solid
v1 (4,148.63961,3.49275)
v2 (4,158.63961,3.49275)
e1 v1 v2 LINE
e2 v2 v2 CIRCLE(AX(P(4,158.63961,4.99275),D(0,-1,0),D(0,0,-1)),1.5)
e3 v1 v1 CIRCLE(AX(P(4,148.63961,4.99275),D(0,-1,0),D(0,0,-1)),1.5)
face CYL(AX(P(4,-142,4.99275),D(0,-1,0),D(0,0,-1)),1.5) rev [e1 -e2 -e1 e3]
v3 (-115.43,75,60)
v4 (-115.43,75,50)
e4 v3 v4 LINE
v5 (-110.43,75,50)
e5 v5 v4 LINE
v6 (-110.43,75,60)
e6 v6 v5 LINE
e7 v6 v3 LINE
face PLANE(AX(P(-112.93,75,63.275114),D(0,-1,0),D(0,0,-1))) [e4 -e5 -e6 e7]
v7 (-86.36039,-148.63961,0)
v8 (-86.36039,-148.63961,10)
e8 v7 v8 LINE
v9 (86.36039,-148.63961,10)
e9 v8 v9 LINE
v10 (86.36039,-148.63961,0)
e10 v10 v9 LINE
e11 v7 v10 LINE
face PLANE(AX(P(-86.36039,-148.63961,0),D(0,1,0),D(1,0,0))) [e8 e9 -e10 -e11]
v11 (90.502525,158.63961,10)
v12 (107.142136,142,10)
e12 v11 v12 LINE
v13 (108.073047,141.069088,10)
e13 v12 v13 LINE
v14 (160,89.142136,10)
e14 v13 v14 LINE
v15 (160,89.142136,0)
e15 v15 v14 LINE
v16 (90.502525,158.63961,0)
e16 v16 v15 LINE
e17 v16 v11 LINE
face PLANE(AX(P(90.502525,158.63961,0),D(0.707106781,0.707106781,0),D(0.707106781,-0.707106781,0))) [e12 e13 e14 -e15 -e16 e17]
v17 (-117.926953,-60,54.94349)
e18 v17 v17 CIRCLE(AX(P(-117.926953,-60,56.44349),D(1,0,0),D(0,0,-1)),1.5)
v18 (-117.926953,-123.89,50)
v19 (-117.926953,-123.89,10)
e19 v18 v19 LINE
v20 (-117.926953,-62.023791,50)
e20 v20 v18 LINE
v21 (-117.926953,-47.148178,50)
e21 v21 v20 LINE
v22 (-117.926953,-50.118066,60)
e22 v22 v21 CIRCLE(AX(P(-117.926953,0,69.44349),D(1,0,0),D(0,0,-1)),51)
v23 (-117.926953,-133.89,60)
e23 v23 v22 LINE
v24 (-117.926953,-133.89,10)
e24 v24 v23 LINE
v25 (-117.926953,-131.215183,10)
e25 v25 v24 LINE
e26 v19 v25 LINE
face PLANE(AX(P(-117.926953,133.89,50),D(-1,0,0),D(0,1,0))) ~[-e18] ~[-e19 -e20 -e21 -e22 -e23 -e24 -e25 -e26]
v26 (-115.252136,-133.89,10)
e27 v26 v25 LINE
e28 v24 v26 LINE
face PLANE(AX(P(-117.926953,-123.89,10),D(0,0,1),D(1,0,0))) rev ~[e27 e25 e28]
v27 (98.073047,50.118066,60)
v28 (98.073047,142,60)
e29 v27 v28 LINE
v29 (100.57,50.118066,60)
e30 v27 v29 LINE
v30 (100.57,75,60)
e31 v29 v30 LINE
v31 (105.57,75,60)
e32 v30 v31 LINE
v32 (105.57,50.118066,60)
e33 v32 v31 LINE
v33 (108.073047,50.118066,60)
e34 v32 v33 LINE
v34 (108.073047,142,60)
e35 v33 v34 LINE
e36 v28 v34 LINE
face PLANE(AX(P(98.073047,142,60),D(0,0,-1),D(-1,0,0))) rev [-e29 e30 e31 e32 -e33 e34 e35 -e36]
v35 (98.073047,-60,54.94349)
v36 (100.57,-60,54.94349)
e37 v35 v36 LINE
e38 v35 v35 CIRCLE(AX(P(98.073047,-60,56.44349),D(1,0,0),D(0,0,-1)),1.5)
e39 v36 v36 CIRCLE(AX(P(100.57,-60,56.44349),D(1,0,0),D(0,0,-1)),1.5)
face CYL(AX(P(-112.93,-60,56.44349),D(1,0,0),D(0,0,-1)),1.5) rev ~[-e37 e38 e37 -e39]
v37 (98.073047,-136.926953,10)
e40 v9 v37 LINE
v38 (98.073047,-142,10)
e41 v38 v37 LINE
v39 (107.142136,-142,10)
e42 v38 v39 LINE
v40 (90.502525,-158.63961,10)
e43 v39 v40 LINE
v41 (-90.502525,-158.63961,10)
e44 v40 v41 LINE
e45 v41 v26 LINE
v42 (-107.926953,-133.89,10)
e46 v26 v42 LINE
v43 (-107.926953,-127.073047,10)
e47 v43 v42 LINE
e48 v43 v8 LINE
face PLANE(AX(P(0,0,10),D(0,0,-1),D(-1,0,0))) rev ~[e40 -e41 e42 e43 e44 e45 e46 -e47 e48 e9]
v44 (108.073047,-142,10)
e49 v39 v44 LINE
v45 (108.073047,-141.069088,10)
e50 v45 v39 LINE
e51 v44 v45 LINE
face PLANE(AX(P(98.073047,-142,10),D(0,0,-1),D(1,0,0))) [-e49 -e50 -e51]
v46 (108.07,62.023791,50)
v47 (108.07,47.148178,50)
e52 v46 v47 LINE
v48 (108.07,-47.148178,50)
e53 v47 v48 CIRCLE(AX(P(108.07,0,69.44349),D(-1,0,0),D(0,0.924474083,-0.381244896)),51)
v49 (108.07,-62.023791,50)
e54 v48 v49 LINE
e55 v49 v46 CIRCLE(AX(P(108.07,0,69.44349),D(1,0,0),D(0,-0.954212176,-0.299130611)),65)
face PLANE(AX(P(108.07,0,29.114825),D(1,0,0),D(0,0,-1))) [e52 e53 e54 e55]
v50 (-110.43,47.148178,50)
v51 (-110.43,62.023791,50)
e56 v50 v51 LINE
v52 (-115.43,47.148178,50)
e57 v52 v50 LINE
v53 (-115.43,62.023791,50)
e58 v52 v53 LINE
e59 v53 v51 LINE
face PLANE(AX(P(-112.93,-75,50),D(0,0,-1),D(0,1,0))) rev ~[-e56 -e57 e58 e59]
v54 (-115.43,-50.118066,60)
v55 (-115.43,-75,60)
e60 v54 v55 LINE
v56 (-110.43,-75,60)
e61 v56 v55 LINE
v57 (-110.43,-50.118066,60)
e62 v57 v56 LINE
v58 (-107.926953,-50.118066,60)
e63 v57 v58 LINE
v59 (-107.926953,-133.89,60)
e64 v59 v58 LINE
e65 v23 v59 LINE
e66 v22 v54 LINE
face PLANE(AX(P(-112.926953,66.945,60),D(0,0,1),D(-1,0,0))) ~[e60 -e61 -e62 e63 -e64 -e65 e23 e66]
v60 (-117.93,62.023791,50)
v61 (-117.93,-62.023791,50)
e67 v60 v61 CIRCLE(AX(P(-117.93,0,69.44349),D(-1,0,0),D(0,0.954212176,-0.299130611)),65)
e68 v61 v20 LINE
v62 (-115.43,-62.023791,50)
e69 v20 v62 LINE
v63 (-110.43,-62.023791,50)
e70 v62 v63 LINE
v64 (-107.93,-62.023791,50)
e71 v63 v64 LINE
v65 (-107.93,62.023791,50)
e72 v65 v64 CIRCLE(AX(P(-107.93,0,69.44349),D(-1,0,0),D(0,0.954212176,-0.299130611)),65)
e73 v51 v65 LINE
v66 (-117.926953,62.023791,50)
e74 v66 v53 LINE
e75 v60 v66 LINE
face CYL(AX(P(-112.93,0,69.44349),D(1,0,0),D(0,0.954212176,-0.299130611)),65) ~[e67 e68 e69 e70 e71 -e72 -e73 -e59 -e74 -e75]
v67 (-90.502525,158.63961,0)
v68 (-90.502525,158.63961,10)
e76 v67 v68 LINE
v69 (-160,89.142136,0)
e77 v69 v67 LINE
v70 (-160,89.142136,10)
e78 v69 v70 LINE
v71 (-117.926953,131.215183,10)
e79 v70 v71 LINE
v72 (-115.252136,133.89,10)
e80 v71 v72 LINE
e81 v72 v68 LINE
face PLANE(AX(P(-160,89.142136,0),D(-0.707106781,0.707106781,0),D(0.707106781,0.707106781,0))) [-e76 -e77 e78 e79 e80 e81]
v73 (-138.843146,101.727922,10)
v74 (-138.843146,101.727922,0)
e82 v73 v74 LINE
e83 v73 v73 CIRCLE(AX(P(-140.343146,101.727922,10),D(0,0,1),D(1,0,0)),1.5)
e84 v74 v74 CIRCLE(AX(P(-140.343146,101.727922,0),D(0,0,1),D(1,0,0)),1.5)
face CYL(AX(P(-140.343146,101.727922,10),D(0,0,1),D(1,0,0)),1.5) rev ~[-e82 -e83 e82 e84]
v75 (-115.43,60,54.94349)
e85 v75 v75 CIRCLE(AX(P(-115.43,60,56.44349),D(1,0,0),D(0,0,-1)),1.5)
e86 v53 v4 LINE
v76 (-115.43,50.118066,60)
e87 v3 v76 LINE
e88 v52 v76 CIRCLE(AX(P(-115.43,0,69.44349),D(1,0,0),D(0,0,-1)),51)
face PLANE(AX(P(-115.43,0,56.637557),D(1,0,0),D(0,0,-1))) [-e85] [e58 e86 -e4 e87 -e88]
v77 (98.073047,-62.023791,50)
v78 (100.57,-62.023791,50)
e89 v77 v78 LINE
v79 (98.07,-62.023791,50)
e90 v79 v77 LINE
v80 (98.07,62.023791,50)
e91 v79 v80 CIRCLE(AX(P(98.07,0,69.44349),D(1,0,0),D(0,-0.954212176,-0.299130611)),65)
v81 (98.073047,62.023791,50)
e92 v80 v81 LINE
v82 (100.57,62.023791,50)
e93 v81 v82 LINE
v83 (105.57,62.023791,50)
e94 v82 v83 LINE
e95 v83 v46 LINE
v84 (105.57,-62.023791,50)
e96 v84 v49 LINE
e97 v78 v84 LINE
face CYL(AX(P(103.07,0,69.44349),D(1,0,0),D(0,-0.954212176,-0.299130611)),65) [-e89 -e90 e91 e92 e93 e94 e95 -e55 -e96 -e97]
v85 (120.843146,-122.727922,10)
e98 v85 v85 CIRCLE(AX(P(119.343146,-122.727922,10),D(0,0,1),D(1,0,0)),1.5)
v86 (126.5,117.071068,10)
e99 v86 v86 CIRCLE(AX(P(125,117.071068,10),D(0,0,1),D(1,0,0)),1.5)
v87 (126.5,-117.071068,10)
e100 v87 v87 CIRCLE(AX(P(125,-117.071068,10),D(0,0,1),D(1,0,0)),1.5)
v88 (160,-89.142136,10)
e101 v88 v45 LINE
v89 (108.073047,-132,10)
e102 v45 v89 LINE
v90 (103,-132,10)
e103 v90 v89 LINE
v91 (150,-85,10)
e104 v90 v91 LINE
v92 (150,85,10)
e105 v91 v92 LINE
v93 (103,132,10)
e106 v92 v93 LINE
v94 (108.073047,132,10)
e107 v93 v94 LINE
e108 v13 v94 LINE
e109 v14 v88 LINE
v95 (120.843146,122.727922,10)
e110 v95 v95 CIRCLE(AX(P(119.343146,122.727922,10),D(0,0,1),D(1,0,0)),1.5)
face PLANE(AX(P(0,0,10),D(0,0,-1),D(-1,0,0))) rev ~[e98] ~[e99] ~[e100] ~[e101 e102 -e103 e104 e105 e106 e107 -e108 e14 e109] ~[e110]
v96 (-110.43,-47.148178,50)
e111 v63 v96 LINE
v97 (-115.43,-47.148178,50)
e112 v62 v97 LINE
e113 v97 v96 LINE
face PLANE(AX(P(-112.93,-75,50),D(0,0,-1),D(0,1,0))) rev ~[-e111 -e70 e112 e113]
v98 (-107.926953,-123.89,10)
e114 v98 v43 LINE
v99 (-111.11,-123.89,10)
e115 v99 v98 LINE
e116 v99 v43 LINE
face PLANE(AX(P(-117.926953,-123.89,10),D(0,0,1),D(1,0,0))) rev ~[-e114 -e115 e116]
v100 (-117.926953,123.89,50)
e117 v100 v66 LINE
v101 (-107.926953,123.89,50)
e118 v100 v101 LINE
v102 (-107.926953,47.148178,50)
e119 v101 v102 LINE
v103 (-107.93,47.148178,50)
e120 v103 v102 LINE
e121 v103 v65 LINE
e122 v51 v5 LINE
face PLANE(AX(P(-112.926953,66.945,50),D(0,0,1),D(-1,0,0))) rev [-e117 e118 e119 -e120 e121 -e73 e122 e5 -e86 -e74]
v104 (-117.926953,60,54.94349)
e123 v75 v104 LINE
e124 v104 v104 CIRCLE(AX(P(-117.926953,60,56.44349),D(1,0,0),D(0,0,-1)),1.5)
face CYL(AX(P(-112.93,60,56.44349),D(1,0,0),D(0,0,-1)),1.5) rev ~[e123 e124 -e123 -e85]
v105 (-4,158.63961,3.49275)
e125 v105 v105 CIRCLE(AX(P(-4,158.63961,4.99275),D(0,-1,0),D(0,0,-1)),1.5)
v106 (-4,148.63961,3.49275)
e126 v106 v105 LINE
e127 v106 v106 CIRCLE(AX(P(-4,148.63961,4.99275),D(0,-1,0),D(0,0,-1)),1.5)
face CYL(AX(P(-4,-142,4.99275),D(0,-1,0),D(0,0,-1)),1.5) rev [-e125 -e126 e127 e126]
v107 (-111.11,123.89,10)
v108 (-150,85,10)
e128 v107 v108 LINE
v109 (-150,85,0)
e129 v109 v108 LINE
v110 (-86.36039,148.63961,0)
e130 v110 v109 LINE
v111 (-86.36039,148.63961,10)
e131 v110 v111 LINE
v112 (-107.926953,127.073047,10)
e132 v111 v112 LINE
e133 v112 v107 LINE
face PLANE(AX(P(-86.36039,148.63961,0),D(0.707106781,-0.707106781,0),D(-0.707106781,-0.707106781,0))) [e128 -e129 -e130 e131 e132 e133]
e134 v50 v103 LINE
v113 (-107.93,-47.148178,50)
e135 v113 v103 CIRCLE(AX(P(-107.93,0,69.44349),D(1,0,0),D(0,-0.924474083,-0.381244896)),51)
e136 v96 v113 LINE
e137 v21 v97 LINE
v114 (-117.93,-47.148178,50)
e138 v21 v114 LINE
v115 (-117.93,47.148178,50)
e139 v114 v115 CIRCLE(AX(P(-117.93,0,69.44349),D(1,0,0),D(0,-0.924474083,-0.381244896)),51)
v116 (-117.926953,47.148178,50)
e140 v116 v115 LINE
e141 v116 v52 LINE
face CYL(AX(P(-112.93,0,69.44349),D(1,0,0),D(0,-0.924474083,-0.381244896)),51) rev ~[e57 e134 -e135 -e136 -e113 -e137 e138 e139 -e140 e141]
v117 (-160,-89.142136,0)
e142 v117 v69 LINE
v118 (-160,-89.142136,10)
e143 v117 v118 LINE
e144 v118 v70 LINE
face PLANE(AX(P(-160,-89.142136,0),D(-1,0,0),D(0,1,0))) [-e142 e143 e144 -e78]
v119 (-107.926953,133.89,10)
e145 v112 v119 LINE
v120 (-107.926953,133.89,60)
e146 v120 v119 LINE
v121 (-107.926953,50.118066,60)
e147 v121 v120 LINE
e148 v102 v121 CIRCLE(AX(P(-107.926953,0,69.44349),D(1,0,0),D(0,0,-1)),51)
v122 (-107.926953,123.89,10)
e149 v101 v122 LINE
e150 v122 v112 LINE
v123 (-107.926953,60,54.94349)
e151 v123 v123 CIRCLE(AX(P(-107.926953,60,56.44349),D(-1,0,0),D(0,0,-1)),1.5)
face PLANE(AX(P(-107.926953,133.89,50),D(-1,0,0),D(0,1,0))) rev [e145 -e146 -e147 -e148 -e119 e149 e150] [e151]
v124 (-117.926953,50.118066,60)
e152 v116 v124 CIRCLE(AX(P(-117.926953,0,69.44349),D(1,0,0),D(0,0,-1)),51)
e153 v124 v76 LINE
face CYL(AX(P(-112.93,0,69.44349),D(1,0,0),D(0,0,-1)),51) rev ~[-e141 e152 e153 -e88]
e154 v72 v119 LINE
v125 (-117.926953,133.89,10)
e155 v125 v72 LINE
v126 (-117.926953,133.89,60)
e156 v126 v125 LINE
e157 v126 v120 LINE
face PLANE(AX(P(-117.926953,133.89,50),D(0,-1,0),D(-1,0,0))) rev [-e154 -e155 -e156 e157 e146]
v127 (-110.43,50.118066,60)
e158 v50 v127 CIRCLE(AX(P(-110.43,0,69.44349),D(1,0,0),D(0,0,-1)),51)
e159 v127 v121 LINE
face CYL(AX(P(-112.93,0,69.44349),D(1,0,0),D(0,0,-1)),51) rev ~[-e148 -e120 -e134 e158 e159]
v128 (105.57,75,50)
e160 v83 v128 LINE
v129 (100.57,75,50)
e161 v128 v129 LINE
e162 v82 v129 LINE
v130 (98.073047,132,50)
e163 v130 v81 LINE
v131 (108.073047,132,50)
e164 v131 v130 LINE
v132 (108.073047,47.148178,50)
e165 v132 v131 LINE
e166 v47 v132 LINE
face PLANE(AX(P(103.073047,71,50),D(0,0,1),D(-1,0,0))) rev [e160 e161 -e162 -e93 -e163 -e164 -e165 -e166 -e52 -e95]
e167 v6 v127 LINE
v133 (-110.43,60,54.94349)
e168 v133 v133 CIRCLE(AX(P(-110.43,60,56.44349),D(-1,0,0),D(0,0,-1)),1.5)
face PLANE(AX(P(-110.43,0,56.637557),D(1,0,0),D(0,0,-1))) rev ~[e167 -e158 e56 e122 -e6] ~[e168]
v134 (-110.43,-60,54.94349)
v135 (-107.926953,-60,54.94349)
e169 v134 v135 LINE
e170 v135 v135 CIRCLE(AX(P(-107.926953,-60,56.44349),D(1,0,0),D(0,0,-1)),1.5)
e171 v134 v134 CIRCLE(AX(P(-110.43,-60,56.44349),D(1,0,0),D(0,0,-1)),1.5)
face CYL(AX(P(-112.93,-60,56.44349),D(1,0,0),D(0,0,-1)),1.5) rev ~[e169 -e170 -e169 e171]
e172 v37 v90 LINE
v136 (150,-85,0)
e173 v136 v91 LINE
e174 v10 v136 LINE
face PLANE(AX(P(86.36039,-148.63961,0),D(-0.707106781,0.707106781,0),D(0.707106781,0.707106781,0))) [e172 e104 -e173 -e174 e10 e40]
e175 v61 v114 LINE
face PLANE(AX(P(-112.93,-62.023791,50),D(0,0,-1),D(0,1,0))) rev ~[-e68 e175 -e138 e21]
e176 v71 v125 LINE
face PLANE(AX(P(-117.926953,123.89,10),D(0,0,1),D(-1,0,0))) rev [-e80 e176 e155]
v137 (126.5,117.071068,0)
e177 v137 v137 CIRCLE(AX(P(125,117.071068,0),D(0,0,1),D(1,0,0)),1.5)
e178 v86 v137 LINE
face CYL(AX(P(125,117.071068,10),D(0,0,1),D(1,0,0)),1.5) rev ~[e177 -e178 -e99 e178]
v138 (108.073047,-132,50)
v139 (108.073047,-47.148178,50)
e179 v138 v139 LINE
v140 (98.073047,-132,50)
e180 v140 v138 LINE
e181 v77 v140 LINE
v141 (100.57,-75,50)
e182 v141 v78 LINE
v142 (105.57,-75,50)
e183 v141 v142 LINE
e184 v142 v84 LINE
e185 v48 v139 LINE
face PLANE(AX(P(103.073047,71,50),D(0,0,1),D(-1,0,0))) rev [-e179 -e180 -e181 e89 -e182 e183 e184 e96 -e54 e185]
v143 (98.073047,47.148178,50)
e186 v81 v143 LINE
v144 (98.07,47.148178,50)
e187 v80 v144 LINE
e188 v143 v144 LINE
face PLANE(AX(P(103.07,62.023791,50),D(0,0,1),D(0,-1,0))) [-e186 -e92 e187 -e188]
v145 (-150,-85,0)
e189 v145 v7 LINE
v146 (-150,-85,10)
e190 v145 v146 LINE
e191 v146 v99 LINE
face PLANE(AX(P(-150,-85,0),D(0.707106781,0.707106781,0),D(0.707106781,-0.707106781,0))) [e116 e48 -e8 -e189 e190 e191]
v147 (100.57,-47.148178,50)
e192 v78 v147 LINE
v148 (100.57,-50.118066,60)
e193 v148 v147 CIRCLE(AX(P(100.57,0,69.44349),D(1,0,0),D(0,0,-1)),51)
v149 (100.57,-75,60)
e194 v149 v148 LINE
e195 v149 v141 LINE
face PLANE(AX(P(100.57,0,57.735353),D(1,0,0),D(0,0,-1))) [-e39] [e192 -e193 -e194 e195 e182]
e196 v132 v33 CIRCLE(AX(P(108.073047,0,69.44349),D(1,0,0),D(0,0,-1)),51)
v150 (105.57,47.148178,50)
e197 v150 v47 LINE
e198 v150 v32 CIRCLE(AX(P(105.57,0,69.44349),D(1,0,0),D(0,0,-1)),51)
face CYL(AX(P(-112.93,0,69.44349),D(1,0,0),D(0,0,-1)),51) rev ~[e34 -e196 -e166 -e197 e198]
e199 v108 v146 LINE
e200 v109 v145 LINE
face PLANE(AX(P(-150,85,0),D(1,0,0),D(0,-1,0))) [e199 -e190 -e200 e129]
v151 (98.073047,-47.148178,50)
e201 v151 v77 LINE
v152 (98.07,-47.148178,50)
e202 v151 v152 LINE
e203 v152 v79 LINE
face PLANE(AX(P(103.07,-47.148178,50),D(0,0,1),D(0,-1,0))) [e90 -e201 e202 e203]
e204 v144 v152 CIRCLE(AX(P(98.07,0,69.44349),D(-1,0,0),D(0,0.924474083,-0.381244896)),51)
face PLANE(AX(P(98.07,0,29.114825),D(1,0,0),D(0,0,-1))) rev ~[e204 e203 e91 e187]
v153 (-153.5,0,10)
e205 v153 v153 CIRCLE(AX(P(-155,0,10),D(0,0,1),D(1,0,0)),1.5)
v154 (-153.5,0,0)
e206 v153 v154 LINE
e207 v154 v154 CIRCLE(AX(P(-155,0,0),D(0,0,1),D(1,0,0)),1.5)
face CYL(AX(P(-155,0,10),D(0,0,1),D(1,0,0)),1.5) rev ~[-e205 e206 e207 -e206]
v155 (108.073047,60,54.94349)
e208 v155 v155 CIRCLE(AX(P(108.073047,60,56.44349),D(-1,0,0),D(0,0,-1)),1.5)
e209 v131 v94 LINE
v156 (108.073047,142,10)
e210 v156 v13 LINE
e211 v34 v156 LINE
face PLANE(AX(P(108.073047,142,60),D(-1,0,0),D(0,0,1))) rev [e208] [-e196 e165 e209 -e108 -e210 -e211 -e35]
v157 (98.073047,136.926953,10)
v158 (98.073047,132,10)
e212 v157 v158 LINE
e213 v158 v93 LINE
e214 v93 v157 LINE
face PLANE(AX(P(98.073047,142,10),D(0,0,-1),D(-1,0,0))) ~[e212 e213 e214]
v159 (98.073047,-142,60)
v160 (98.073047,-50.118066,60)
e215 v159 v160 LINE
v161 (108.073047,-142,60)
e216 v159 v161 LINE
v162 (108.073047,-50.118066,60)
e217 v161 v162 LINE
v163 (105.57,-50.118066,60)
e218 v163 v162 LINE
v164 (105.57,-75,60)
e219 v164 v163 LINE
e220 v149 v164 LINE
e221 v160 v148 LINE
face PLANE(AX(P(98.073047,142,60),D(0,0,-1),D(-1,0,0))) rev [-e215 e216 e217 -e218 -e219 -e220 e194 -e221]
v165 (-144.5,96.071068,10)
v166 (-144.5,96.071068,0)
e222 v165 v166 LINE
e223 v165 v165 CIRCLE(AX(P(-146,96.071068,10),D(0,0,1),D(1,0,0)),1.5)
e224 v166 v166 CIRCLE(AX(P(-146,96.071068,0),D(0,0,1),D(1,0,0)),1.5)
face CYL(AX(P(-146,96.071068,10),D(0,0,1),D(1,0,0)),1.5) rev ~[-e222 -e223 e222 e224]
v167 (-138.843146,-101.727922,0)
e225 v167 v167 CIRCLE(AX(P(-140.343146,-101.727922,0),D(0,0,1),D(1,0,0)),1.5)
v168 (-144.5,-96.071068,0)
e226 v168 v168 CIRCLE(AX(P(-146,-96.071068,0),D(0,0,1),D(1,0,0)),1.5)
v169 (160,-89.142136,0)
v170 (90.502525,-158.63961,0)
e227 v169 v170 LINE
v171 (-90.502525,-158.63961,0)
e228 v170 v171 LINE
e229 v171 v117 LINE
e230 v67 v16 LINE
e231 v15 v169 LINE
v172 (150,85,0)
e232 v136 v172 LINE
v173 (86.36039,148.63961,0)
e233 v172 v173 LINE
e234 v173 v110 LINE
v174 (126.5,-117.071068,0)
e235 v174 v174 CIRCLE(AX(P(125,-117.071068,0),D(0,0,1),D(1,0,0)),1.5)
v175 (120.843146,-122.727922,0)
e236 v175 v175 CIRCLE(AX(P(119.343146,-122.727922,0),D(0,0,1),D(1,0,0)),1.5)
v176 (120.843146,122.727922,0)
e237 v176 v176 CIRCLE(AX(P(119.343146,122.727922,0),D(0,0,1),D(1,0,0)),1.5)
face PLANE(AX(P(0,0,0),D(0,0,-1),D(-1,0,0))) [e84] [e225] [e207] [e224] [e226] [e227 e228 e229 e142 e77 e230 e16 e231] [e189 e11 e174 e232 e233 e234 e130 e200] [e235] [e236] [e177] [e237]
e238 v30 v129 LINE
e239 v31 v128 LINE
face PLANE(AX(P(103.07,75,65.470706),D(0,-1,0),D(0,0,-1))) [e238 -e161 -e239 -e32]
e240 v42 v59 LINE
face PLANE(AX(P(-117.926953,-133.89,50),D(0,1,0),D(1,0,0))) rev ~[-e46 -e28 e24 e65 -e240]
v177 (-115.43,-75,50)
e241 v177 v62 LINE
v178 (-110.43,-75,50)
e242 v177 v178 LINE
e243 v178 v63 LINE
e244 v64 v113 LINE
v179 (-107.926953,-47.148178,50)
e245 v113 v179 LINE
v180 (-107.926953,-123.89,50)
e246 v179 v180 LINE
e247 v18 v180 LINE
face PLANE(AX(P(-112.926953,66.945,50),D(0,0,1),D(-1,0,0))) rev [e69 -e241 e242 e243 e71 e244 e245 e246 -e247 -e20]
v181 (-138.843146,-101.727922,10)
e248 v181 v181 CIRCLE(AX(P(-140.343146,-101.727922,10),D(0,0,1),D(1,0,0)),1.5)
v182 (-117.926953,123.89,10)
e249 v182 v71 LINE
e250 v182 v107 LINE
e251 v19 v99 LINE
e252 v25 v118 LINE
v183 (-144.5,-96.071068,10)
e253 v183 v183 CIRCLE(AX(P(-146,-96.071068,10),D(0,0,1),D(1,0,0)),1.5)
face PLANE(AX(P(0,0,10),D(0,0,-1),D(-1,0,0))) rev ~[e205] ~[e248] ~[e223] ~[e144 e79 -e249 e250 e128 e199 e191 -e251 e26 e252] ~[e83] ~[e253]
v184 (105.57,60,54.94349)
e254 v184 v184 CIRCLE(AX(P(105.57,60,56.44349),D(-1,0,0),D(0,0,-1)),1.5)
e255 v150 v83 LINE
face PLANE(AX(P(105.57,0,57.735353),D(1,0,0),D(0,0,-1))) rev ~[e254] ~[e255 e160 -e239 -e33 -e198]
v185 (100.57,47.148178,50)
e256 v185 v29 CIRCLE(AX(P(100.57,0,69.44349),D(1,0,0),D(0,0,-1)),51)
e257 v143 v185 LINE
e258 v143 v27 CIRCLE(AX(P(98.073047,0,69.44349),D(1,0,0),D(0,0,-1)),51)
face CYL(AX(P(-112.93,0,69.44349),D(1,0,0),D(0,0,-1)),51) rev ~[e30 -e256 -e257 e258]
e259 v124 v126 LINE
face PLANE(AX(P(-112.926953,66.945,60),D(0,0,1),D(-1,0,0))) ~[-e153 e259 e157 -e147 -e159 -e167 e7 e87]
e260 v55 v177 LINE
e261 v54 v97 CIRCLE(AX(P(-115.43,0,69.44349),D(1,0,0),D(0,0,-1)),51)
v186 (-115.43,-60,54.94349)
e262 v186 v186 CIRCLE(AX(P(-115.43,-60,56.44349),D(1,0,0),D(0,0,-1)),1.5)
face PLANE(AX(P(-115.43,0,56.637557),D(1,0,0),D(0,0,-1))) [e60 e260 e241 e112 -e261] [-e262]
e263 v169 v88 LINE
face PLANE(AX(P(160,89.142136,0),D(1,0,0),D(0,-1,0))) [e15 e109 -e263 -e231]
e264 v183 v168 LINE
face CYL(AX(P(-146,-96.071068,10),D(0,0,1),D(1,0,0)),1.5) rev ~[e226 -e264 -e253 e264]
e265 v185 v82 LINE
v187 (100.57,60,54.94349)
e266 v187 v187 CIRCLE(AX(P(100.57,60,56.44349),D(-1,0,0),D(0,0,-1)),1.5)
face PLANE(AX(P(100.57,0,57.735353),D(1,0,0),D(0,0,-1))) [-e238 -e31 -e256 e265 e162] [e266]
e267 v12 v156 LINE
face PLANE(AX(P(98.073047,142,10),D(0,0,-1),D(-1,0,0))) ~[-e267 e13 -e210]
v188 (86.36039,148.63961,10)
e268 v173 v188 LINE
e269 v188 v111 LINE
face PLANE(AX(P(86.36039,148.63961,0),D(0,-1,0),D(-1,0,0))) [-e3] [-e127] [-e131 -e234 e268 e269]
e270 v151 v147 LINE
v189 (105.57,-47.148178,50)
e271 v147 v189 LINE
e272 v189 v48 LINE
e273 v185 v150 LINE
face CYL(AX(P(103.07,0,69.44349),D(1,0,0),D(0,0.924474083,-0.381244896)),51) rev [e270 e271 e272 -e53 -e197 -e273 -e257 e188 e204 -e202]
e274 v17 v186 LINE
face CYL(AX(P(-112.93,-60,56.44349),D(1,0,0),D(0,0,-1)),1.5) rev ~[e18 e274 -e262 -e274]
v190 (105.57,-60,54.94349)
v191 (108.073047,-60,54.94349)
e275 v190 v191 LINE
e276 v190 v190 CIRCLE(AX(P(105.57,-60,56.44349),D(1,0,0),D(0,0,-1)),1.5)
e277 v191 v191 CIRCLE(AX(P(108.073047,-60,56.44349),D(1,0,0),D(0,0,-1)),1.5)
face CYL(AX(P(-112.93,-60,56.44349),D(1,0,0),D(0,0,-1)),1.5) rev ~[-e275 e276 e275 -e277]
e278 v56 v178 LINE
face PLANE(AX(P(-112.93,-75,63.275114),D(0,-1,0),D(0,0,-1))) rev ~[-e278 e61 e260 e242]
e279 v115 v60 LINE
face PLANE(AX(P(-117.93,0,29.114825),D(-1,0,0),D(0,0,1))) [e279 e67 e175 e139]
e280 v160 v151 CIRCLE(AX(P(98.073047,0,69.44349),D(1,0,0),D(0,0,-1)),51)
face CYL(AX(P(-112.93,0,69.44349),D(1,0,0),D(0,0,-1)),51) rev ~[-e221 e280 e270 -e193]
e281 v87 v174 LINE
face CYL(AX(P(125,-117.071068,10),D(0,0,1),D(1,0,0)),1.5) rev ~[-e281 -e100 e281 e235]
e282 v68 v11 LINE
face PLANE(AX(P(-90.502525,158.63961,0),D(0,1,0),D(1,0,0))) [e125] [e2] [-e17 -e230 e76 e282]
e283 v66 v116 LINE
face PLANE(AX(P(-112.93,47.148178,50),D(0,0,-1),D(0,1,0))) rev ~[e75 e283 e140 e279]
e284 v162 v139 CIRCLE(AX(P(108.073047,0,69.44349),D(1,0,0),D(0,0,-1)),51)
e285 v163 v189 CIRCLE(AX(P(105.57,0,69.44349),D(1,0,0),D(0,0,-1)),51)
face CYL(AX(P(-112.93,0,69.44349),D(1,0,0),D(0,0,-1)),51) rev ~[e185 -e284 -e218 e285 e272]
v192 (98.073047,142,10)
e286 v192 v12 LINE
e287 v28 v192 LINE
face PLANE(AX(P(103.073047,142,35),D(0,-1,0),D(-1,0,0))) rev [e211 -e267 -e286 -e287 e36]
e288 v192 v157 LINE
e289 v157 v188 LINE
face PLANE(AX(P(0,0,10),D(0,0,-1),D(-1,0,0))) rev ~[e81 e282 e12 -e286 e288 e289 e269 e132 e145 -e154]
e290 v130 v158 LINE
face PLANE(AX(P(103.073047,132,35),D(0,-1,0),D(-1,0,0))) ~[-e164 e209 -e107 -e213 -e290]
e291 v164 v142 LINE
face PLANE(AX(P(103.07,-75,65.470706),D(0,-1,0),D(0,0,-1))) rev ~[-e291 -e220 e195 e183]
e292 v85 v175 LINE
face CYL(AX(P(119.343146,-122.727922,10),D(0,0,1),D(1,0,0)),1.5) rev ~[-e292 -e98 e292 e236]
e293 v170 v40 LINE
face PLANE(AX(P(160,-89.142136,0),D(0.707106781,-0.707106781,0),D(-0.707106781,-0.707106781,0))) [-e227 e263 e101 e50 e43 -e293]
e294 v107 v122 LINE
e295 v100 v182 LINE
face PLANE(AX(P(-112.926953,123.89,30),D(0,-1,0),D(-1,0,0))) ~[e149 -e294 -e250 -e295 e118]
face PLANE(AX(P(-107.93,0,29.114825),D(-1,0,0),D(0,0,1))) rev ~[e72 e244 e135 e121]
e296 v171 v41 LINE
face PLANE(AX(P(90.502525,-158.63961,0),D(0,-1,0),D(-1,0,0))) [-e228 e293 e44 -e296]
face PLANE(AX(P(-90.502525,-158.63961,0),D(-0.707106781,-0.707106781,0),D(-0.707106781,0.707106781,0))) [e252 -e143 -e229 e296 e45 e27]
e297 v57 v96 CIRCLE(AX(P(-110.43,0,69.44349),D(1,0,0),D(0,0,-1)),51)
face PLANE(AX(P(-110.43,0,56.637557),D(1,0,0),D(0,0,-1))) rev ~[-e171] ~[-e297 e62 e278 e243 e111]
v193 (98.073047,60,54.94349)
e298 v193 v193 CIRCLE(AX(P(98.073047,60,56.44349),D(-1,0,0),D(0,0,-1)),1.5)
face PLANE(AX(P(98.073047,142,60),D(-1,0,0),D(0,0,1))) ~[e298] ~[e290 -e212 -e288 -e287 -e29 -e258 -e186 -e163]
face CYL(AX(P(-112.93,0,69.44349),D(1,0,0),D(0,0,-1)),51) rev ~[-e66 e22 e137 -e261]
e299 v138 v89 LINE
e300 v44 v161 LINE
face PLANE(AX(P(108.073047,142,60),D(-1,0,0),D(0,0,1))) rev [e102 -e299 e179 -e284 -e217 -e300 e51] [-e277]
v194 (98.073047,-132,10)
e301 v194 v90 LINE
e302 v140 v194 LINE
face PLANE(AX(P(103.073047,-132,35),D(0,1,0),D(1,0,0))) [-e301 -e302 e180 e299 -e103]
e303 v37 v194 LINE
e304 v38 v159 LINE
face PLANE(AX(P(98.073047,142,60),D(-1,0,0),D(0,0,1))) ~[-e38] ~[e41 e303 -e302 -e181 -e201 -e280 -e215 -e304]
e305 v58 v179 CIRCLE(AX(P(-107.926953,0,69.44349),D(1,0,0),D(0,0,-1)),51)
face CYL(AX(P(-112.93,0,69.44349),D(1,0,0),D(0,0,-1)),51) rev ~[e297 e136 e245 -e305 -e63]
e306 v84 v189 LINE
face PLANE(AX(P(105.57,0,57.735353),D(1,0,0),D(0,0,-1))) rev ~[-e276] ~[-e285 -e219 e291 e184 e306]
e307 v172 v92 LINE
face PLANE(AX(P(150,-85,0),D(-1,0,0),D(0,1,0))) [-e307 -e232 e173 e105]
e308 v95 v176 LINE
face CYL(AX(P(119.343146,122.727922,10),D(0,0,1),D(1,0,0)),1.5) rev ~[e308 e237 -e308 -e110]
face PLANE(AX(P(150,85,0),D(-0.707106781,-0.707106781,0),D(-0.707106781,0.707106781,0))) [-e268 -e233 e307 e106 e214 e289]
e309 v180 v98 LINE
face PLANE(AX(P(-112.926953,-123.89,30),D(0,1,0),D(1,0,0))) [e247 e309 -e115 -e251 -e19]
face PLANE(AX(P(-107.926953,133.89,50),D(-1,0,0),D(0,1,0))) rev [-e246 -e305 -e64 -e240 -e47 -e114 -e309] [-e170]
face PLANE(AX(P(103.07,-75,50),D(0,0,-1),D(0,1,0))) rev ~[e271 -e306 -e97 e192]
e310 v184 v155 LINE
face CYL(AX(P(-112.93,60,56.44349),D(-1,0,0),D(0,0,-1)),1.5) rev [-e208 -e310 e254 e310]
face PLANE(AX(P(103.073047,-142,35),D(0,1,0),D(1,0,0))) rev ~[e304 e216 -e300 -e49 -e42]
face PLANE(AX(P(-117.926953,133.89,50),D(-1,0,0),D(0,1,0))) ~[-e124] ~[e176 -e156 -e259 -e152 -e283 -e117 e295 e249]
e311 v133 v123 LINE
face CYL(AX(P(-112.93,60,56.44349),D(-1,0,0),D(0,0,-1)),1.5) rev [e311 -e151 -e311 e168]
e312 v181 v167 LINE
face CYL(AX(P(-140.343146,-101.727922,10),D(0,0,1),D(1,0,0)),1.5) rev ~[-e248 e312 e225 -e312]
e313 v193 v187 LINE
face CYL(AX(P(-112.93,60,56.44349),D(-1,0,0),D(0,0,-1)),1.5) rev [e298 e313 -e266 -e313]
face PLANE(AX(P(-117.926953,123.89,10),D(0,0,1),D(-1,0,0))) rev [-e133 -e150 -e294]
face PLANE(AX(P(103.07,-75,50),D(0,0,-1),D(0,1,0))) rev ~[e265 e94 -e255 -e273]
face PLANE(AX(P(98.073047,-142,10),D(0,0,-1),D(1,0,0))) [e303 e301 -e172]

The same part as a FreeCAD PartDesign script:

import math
import FreeCAD as App
import Part
import Sketcher

V = App.Vector

doc = App.newDocument("Part")
body = doc.addObject("PartDesign::Body", "Body")

# Sketch on XY plane
sketch1 = body.newObject("Sketcher::SketchObject", "Sketch")
sketch1.AttachmentSupport = (doc.getObject("XY_Plane"), [""])
sketch1.MapMode = "FlatFace"
sketch1.addGeometry(Part.LineSegment(V(-91, 159, 0), V(-160, 89, 0)), False)
sketch1.addGeometry(Part.LineSegment(V(-160, 89, 0), V(-160, -89, 0)), False)
sketch1.addGeometry(Part.LineSegment(V(-160, -89, 0), V(-91, -159, 0)), False)
sketch1.addGeometry(Part.LineSegment(V(-91, -159, 0), V(91, -159, 0)), False)
sketch1.addGeometry(Part.LineSegment(V(91, -159, 0), V(160, -89, 0)), False)
sketch1.addGeometry(Part.LineSegment(V(160, -89, 0), V(160, 89, 0)), False)
sketch1.addGeometry(Part.LineSegment(V(160, 89, 0), V(91, 159, 0)), False)
sketch1.addGeometry(Part.LineSegment(V(91, 159, 0), V(-91, 159, 0)), False)
sketch1.addGeometry(Part.LineSegment(V(-150, 85, 0), V(-86, 149, 0)), False)
sketch1.addGeometry(Part.LineSegment(V(-86, 149, 0), V(86, 149, 0)), False)
sketch1.addGeometry(Part.LineSegment(V(86, 149, 0), V(150, 85, 0)), False)
sketch1.addGeometry(Part.LineSegment(V(150, 85, 0), V(150, -85, 0)), False)
sketch1.addGeometry(Part.LineSegment(V(150, -85, 0), V(86, -149, 0)), False)
sketch1.addGeometry(Part.LineSegment(V(86, -149, 0), V(-86, -149, 0)), False)
sketch1.addGeometry(Part.LineSegment(V(-86, -149, 0), V(-150, -85, 0)), False)
sketch1.addGeometry(Part.LineSegment(V(-150, -85, 0), V(-150, 85, 0)), False)
sketch1.addConstraint(Sketcher.Constraint("Coincident", 0, 2, 1, 1))
sketch1.addConstraint(Sketcher.Constraint("Coincident", 1, 2, 2, 1))
sketch1.addConstraint(Sketcher.Constraint("Coincident", 2, 2, 3, 1))
sketch1.addConstraint(Sketcher.Constraint("Coincident", 3, 2, 4, 1))
sketch1.addConstraint(Sketcher.Constraint("Coincident", 4, 2, 5, 1))
sketch1.addConstraint(Sketcher.Constraint("Coincident", 5, 2, 6, 1))
sketch1.addConstraint(Sketcher.Constraint("Coincident", 6, 2, 7, 1))
sketch1.addConstraint(Sketcher.Constraint("Coincident", 7, 2, 0, 1))
sketch1.addConstraint(Sketcher.Constraint("Coincident", 8, 2, 9, 1))
sketch1.addConstraint(Sketcher.Constraint("Coincident", 9, 2, 10, 1))
sketch1.addConstraint(Sketcher.Constraint("Coincident", 10, 2, 11, 1))
sketch1.addConstraint(Sketcher.Constraint("Coincident", 11, 2, 12, 1))
sketch1.addConstraint(Sketcher.Constraint("Coincident", 12, 2, 13, 1))
sketch1.addConstraint(Sketcher.Constraint("Coincident", 13, 2, 14, 1))
sketch1.addConstraint(Sketcher.Constraint("Coincident", 14, 2, 15, 1))
sketch1.addConstraint(Sketcher.Constraint("Coincident", 15, 2, 8, 1))
sketch1.addConstraint(Sketcher.Constraint("Vertical", 1))
sketch1.addConstraint(Sketcher.Constraint("Horizontal", 3))
sketch1.addConstraint(Sketcher.Constraint("Vertical", 5))
sketch1.addConstraint(Sketcher.Constraint("Horizontal", 7))
sketch1.addConstraint(Sketcher.Constraint("Horizontal", 9))
sketch1.addConstraint(Sketcher.Constraint("Vertical", 11))
sketch1.addConstraint(Sketcher.Constraint("Horizontal", 13))
sketch1.addConstraint(Sketcher.Constraint("Vertical", 15))
sketch1.addConstraint(Sketcher.Constraint("Symmetric", 0, 2, 4, 2, -1, 1))
sketch1.addConstraint(Sketcher.Constraint("Symmetric", 2, 2, 6, 2, -1, 1))
sketch1.addConstraint(Sketcher.Constraint("Symmetric", 8, 2, 12, 2, -1, 1))
sketch1.addConstraint(Sketcher.Constraint("Symmetric", 10, 2, 14, 2, -1, 1))
sketch1.addConstraint(Sketcher.Constraint("Perpendicular", 0, 2))
sketch1.addConstraint(Sketcher.Constraint("Perpendicular", 2, 4))
sketch1.addConstraint(Sketcher.Constraint("Perpendicular", 4, 6))
sketch1.addConstraint(Sketcher.Constraint("Perpendicular", 6, 8))
sketch1.addConstraint(Sketcher.Constraint("Perpendicular", 8, 10))
sketch1.addConstraint(Sketcher.Constraint("Perpendicular", 10, 12))
sketch1.addConstraint(Sketcher.Constraint("Perpendicular", 12, 14))
sketch1.addConstraint(Sketcher.Constraint("Horizontal", 1, 2, 4, 2))
sketch1.addConstraint(Sketcher.Constraint("Horizontal", 11, 2, 14, 2))
sketch1.addConstraint(Sketcher.Constraint("Vertical", 3, 2, 6, 2))
sketch1.addConstraint(Sketcher.Constraint("DistanceY", 11, 2, 11, 1, 170.0))
sketch1.addConstraint(Sketcher.Constraint("Distance", 8, 90.0))
sketch1.addConstraint(Sketcher.Constraint("DistanceX", 0, 2, -1, 1, 160.0))
sketch1.addConstraint(Sketcher.Constraint("DistanceX", -1, 1, 10, 2, 150.0))
sketch1.addConstraint(Sketcher.Constraint("DistanceY", 8, 2, 7, 2, 10.0))
sketch1.addConstraint(Sketcher.Constraint("DistanceX", 3, 1, 3, 2, 181.005051))
pad1 = body.newObject("PartDesign::Pad", "Pad")
pad1.Profile = sketch1
pad1.Length = 10

# Sketch on XZ plane
sketch2 = body.newObject("Sketcher::SketchObject", "Sketch001")
sketch2.AttachmentSupport = (doc.getObject("XZ_Plane"), [""])
sketch2.MapMode = "FlatFace"
sketch2.AttachmentOffset = App.Placement(V(0, 0, 123.89), App.Rotation())
sketch2.addGeometry(Part.LineSegment(V(-118, 10, 0), V(-118, 50, 0)), False)
sketch2.addGeometry(Part.LineSegment(V(-118, 50, 0), V(-108, 50, 0)), False)
sketch2.addGeometry(Part.LineSegment(V(-108, 50, 0), V(-108, 10, 0)), False)
sketch2.addGeometry(Part.LineSegment(V(-108, 10, 0), V(-118, 10, 0)), False)
sketch2.addConstraint(Sketcher.Constraint("Coincident", 0, 2, 1, 1))
sketch2.addConstraint(Sketcher.Constraint("Coincident", 1, 2, 2, 1))
sketch2.addConstraint(Sketcher.Constraint("Coincident", 2, 2, 3, 1))
sketch2.addConstraint(Sketcher.Constraint("Coincident", 3, 2, 0, 1))
sketch2.addConstraint(Sketcher.Constraint("Vertical", 0))
sketch2.addConstraint(Sketcher.Constraint("Horizontal", 1))
sketch2.addConstraint(Sketcher.Constraint("Vertical", 2))
sketch2.addConstraint(Sketcher.Constraint("Horizontal", 3))
sketch2.addConstraint(Sketcher.Constraint("DistanceX", 1, 1, 1, 2, 10.0))
sketch2.addConstraint(Sketcher.Constraint("DistanceY", 0, 1, 0, 2, 40.0))
sketch2.addConstraint(Sketcher.Constraint("DistanceY", -1, 1, 0, 2, 50.0))
sketch2.addConstraint(Sketcher.Constraint("DistanceX", 0, 2, -1, 1, 117.926953))
pad2 = body.newObject("PartDesign::Pad", "Pad001")
pad2.Profile = sketch2
pad2.Length = 10

# Sketch on XY plane
sketch3 = body.newObject("Sketcher::SketchObject", "Sketch002")
sketch3.AttachmentSupport = (doc.getObject("XY_Plane"), [""])
sketch3.MapMode = "FlatFace"
sketch3.AttachmentOffset = App.Placement(V(0, 0, 50), App.Rotation())
sketch3.addGeometry(Part.LineSegment(V(-118, 0, 0), V(-118, -134, 0)), False)
sketch3.addGeometry(Part.LineSegment(V(-118, -134, 0), V(-108, -134, 0)), False)
sketch3.addGeometry(Part.LineSegment(V(-108, -134, 0), V(-108, 0, 0)), False)
sketch3.addGeometry(Part.LineSegment(V(-108, 0, 0), V(-118, 0, 0)), False)
sketch3.addConstraint(Sketcher.Constraint("Coincident", 0, 2, 1, 1))
sketch3.addConstraint(Sketcher.Constraint("Coincident", 1, 2, 2, 1))
sketch3.addConstraint(Sketcher.Constraint("Coincident", 2, 2, 3, 1))
sketch3.addConstraint(Sketcher.Constraint("Coincident", 3, 2, 0, 1))
sketch3.addConstraint(Sketcher.Constraint("Vertical", 0))
sketch3.addConstraint(Sketcher.Constraint("Horizontal", 1))
sketch3.addConstraint(Sketcher.Constraint("Vertical", 2))
sketch3.addConstraint(Sketcher.Constraint("Horizontal", 3))
sketch3.addConstraint(Sketcher.Constraint("PointOnObject", 2, 2, -1))
sketch3.addConstraint(Sketcher.Constraint("DistanceX", 1, 1, 1, 2, 10.0))
sketch3.addConstraint(Sketcher.Constraint("DistanceY", 0, 2, 0, 1, 133.89))
sketch3.addConstraint(Sketcher.Constraint("DistanceX", 0, 2, -1, 1, 117.926953))
pad3 = body.newObject("PartDesign::Pad", "Pad002")
pad3.Profile = sketch3
pad3.Length = 10

# Sketch on XZ plane
sketch4 = body.newObject("Sketcher::SketchObject", "Sketch003")
sketch4.AttachmentSupport = (doc.getObject("XZ_Plane"), [""])
sketch4.MapMode = "FlatFace"
sketch4.AttachmentOffset = App.Placement(V(0, 0, 142), App.Rotation())
sketch4.addGeometry(Part.LineSegment(V(98, 10, 0), V(98, 60, 0)), False)
sketch4.addGeometry(Part.LineSegment(V(98, 60, 0), V(108, 60, 0)), False)
sketch4.addGeometry(Part.LineSegment(V(108, 60, 0), V(108, 10, 0)), False)
sketch4.addGeometry(Part.LineSegment(V(108, 10, 0), V(98, 10, 0)), False)
sketch4.addConstraint(Sketcher.Constraint("Coincident", 0, 2, 1, 1))
sketch4.addConstraint(Sketcher.Constraint("Coincident", 1, 2, 2, 1))
sketch4.addConstraint(Sketcher.Constraint("Coincident", 2, 2, 3, 1))
sketch4.addConstraint(Sketcher.Constraint("Coincident", 3, 2, 0, 1))
sketch4.addConstraint(Sketcher.Constraint("Vertical", 0))
sketch4.addConstraint(Sketcher.Constraint("Horizontal", 1))
sketch4.addConstraint(Sketcher.Constraint("Vertical", 2))
sketch4.addConstraint(Sketcher.Constraint("Horizontal", 3))
sketch4.addConstraint(Sketcher.Constraint("DistanceX", 1, 1, 1, 2, 10.0))
sketch4.addConstraint(Sketcher.Constraint("DistanceY", 0, 1, 0, 2, 50.0))
sketch4.addConstraint(Sketcher.Constraint("DistanceY", -1, 1, 0, 2, 60.0))
sketch4.addConstraint(Sketcher.Constraint("DistanceX", -1, 1, 0, 2, 98.073047))
pad4 = body.newObject("PartDesign::Pad", "Pad003")
pad4.Profile = sketch4
pad4.Length = 10
pad4.Reversed = True

# Sketch on XY plane
sketch5 = body.newObject("Sketcher::SketchObject", "Sketch004")
sketch5.AttachmentSupport = (doc.getObject("XY_Plane"), [""])
sketch5.MapMode = "FlatFace"
sketch5.AttachmentOffset = App.Placement(V(0, 0, 50), App.Rotation())
sketch5.addGeometry(Part.LineSegment(V(98, 0, 0), V(98, -142, 0)), False)
sketch5.addGeometry(Part.LineSegment(V(98, -142, 0), V(108, -142, 0)), False)
sketch5.addGeometry(Part.LineSegment(V(108, -142, 0), V(108, 0, 0)), False)
sketch5.addGeometry(Part.LineSegment(V(108, 0, 0), V(98, 0, 0)), False)
sketch5.addConstraint(Sketcher.Constraint("Coincident", 0, 2, 1, 1))
sketch5.addConstraint(Sketcher.Constraint("Coincident", 1, 2, 2, 1))
sketch5.addConstraint(Sketcher.Constraint("Coincident", 2, 2, 3, 1))
sketch5.addConstraint(Sketcher.Constraint("Coincident", 3, 2, 0, 1))
sketch5.addConstraint(Sketcher.Constraint("Vertical", 0))
sketch5.addConstraint(Sketcher.Constraint("Horizontal", 1))
sketch5.addConstraint(Sketcher.Constraint("Vertical", 2))
sketch5.addConstraint(Sketcher.Constraint("Horizontal", 3))
sketch5.addConstraint(Sketcher.Constraint("PointOnObject", 2, 2, -1))
sketch5.addConstraint(Sketcher.Constraint("DistanceX", 1, 1, 1, 2, 10.0))
sketch5.addConstraint(Sketcher.Constraint("DistanceY", 0, 2, 0, 1, 142.0))
sketch5.addConstraint(Sketcher.Constraint("DistanceX", -1, 1, 0, 2, 98.073047))
pad5 = body.newObject("PartDesign::Pad", "Pad004")
pad5.Profile = sketch5
pad5.Length = 10
doc.recompute()

mirrored = body.newObject("PartDesign::Mirrored", "Mirrored")
mirrored.Originals = [pad2, pad3, pad4, pad5]
mirrored.MirrorPlane = (doc.getObject("XZ_Plane"), [""])
body.Tip = mirrored

# Sketch on XY plane
sketch6 = body.newObject("Sketcher::SketchObject", "Sketch005")
sketch6.AttachmentSupport = (doc.getObject("XY_Plane"), [""])
sketch6.MapMode = "FlatFace"
sketch6.AttachmentOffset = App.Placement(V(0, 0, 10), App.Rotation())
sketch6.addGeometry(Part.Circle(V(125, 117.1, 0), V(0, 0, 1), 1.5), False)
sketch6.addGeometry(Part.Circle(V(119.3, 122.7, 0), V(0, 0, 1), 1.5), False)
sketch6.addGeometry(Part.Circle(V(119.3, -122.7, 0), V(0, 0, 1), 1.5), False)
sketch6.addGeometry(Part.Circle(V(125, -117.1, 0), V(0, 0, 1), 1.5), False)
sketch6.addGeometry(Part.Circle(V(-140.3, 101.7, 0), V(0, 0, 1), 1.5), False)
sketch6.addGeometry(Part.Circle(V(-146, 96.1, 0), V(0, 0, 1), 1.5), False)
sketch6.addGeometry(Part.Circle(V(-140.3, -101.7, 0), V(0, 0, 1), 1.5), False)
sketch6.addGeometry(Part.Circle(V(-146, -96.1, 0), V(0, 0, 1), 1.5), False)
sketch6.addGeometry(Part.Circle(V(-155, 0, 0), V(0, 0, 1), 1.5), False)
sketch6.addConstraint(Sketcher.Constraint("Equal", 0, 1))
sketch6.addConstraint(Sketcher.Constraint("Equal", 1, 2))
sketch6.addConstraint(Sketcher.Constraint("Equal", 2, 3))
sketch6.addConstraint(Sketcher.Constraint("Equal", 3, 4))
sketch6.addConstraint(Sketcher.Constraint("Equal", 4, 5))
sketch6.addConstraint(Sketcher.Constraint("Equal", 5, 6))
sketch6.addConstraint(Sketcher.Constraint("Equal", 6, 7))
sketch6.addConstraint(Sketcher.Constraint("Equal", 7, 8))
sketch6.addConstraint(Sketcher.Constraint("Symmetric", 1, 3, 2, 3, -1))
sketch6.addConstraint(Sketcher.Constraint("Symmetric", 0, 3, 3, 3, -1))
sketch6.addConstraint(Sketcher.Constraint("Symmetric", 4, 3, 6, 3, -1))
sketch6.addConstraint(Sketcher.Constraint("Symmetric", 5, 3, 7, 3, -1))
sketch6.addConstraint(Sketcher.Constraint("PointOnObject", 8, 3, -1))
sketch6.addConstraint(Sketcher.Constraint("Diameter", 0, 3.0))
sketch6.addConstraint(Sketcher.Constraint("DistanceX", -1, 1, 0, 3, 125.0))
sketch6.addConstraint(Sketcher.Constraint("DistanceX", 5, 3, -1, 1, 146.0))
sketch6.addConstraint(Sketcher.Constraint("DistanceX", 8, 3, -1, 1, 155.0))
sketch6.addConstraint(Sketcher.Constraint("DistanceY", 4, 3, 1, 3, 21.0))
sketch6.addConstraint(Sketcher.Constraint("DistanceY", 5, 3, 0, 3, 21.0))
sketch6.addConstraint(Sketcher.Constraint("DistanceY", 2, 3, 0, 3, 239.79899))
sketch6.addConstraint(Sketcher.Constraint("DistanceX", 4, 3, 1, 3, 259.686292))
sketch6.addConstraint(Sketcher.Constraint("DistanceY", -1, 1, 0, 3, 117.071068))
sketch6.addConstraint(Sketcher.Constraint("DistanceX", -1, 1, 1, 3, 119.343146))
pocket1 = body.newObject("PartDesign::Pocket", "Pocket")
pocket1.Profile = sketch6
pocket1.Length = 35

# Sketch on XZ plane
sketch7 = body.newObject("Sketcher::SketchObject", "Sketch006")
sketch7.AttachmentSupport = (doc.getObject("XZ_Plane"), [""])
sketch7.MapMode = "FlatFace"
sketch7.AttachmentOffset = App.Placement(V(0, 0, 142), App.Rotation())
sketch7.addGeometry(Part.Circle(V(-4, 5, 0), V(0, 0, 1), 1.5), False)
sketch7.addGeometry(Part.Circle(V(4, 5, 0), V(0, 0, 1), 1.5), False)
sketch7.addConstraint(Sketcher.Constraint("Equal", 0, 1))
sketch7.addConstraint(Sketcher.Constraint("Symmetric", 0, 3, 1, 3, -2))
sketch7.addConstraint(Sketcher.Constraint("Diameter", 0, 3.0))
sketch7.addConstraint(Sketcher.Constraint("DistanceX", 0, 3, -1, 1, 4.0))
sketch7.addConstraint(Sketcher.Constraint("DistanceY", -1, 1, 0, 3, 4.99275))
pocket2 = body.newObject("PartDesign::Pocket", "Pocket001")
pocket2.Profile = sketch7
pocket2.Length = 374

# Sketch on YZ plane
sketch8 = body.newObject("Sketcher::SketchObject", "Sketch007")
sketch8.AttachmentSupport = (doc.getObject("YZ_Plane"), [""])
sketch8.MapMode = "FlatFace"
sketch8.AttachmentOffset = App.Placement(V(0, 0, -112.93), App.Rotation())
sketch8.addGeometry(Part.Circle(V(0, 69, 0), V(0, 0, 1), 51), False)
sketch8.addConstraint(Sketcher.Constraint("PointOnObject", 0, 3, -2))
sketch8.addConstraint(Sketcher.Constraint("Diameter", 0, 102.0))
sketch8.addConstraint(Sketcher.Constraint("DistanceY", -1, 1, 0, 3, 69.44349))
pocket3 = body.newObject("PartDesign::Pocket", "Pocket002")
pocket3.Profile = sketch8
pocket3.Length = 676
pocket3.Midplane = True

# Sketch on YZ plane
sketch9 = body.newObject("Sketcher::SketchObject", "Sketch008")
sketch9.AttachmentSupport = (doc.getObject("YZ_Plane"), [""])
sketch9.MapMode = "FlatFace"
sketch9.AttachmentOffset = App.Placement(V(0, 0, -112.93), App.Rotation())
sketch9.addGeometry(Part.LineSegment(V(-47, 50, 0), V(-62, 50, 0)), False)
sketch9.addGeometry(Part.ArcOfCircle(Part.Circle(V(0, 69, 0), V(0, 0, 1), 65), math.radians(-163), math.radians(-17)), False)
sketch9.addGeometry(Part.LineSegment(V(62, 50, 0), V(47, 50, 0)), False)
sketch9.addGeometry(Part.ArcOfCircle(Part.Circle(V(0, 69, 0), V(0, 0, 1), 51), math.radians(-158), math.radians(-22)), False)
sketch9.addConstraint(Sketcher.Constraint("Coincident", 0, 2, 1, 1))
sketch9.addConstraint(Sketcher.Constraint("Coincident", 1, 2, 2, 1))
sketch9.addConstraint(Sketcher.Constraint("Coincident", 2, 2, 3, 2))
sketch9.addConstraint(Sketcher.Constraint("Coincident", 3, 1, 0, 1))
sketch9.addConstraint(Sketcher.Constraint("Horizontal", 0))
sketch9.addConstraint(Sketcher.Constraint("Horizontal", 2))
sketch9.addConstraint(Sketcher.Constraint("Coincident", 3, 3, 1, 3))
sketch9.addConstraint(Sketcher.Constraint("Symmetric", 0, 2, 1, 2, -2))
sketch9.addConstraint(Sketcher.Constraint("Radius", 1, 65.0))
sketch9.addConstraint(Sketcher.Constraint("Radius", 3, 51.0))
sketch9.addConstraint(Sketcher.Constraint("DistanceY", -1, 1, 0, 2, 50.0))
sketch9.addConstraint(Sketcher.Constraint("DistanceX", 0, 2, 0, 1, 14.875613))
pad6 = body.newObject("PartDesign::Pad", "Pad005")
pad6.Profile = sketch9
pad6.Length = 10
pad6.Midplane = True

# Sketch on YZ plane
sketch10 = body.newObject("Sketcher::SketchObject", "Sketch009")
sketch10.AttachmentSupport = (doc.getObject("YZ_Plane"), [""])
sketch10.MapMode = "FlatFace"
sketch10.AttachmentOffset = App.Placement(V(0, 0, 103.07), App.Rotation())
sketch10.addGeometry(Part.LineSegment(V(-47, 50, 0), V(-62, 50, 0)), False)
sketch10.addGeometry(Part.ArcOfCircle(Part.Circle(V(0, 69, 0), V(0, 0, 1), 65), math.radians(-163), math.radians(-17)), False)
sketch10.addGeometry(Part.LineSegment(V(62, 50, 0), V(47, 50, 0)), False)
sketch10.addGeometry(Part.ArcOfCircle(Part.Circle(V(0, 69, 0), V(0, 0, 1), 51), math.radians(-158), math.radians(-22)), False)
sketch10.addConstraint(Sketcher.Constraint("Coincident", 0, 2, 1, 1))
sketch10.addConstraint(Sketcher.Constraint("Coincident", 1, 2, 2, 1))
sketch10.addConstraint(Sketcher.Constraint("Coincident", 2, 2, 3, 2))
sketch10.addConstraint(Sketcher.Constraint("Coincident", 3, 1, 0, 1))
sketch10.addConstraint(Sketcher.Constraint("Horizontal", 0))
sketch10.addConstraint(Sketcher.Constraint("Horizontal", 2))
sketch10.addConstraint(Sketcher.Constraint("Coincident", 3, 3, 1, 3))
sketch10.addConstraint(Sketcher.Constraint("Symmetric", 0, 2, 1, 2, -2))
sketch10.addConstraint(Sketcher.Constraint("Radius", 1, 65.0))
sketch10.addConstraint(Sketcher.Constraint("Radius", 3, 51.0))
sketch10.addConstraint(Sketcher.Constraint("DistanceY", -1, 1, 0, 2, 50.0))
sketch10.addConstraint(Sketcher.Constraint("DistanceX", 0, 2, 0, 1, 14.875613))
pad7 = body.newObject("PartDesign::Pad", "Pad006")
pad7.Profile = sketch10
pad7.Length = 10
pad7.Midplane = True

# Sketch on YZ plane
sketch11 = body.newObject("Sketcher::SketchObject", "Sketch010")
sketch11.AttachmentSupport = (doc.getObject("YZ_Plane"), [""])
sketch11.MapMode = "FlatFace"
sketch11.AttachmentOffset = App.Placement(V(0, 0, -112.93), App.Rotation())
sketch11.addGeometry(Part.LineSegment(V(75, 63, 0), V(-75, 63, 0)), False)
sketch11.addGeometry(Part.LineSegment(V(-75, 63, 0), V(-75, 50, 0)), False)
sketch11.addGeometry(Part.LineSegment(V(-75, 50, 0), V(75, 50, 0)), False)
sketch11.addGeometry(Part.LineSegment(V(75, 50, 0), V(75, 63, 0)), False)
sketch11.addConstraint(Sketcher.Constraint("Coincident", 0, 2, 1, 1))
sketch11.addConstraint(Sketcher.Constraint("Coincident", 1, 2, 2, 1))
sketch11.addConstraint(Sketcher.Constraint("Coincident", 2, 2, 3, 1))
sketch11.addConstraint(Sketcher.Constraint("Coincident", 3, 2, 0, 1))
sketch11.addConstraint(Sketcher.Constraint("Horizontal", 0))
sketch11.addConstraint(Sketcher.Constraint("Vertical", 1))
sketch11.addConstraint(Sketcher.Constraint("Horizontal", 2))
sketch11.addConstraint(Sketcher.Constraint("Vertical", 3))
sketch11.addConstraint(Sketcher.Constraint("DistanceX", 0, 2, 0, 1, 150.0))
sketch11.addConstraint(Sketcher.Constraint("DistanceX", 0, 2, -1, 1, 75.0))
sketch11.addConstraint(Sketcher.Constraint("DistanceY", -1, 1, 1, 2, 50.0))
sketch11.addConstraint(Sketcher.Constraint("DistanceY", 1, 2, 1, 1, 13.275114))
pocket4 = body.newObject("PartDesign::Pocket", "Pocket003")
pocket4.Profile = sketch11
pocket4.Length = 5
pocket4.Midplane = True

# Sketch on YZ plane
sketch12 = body.newObject("Sketcher::SketchObject", "Sketch011")
sketch12.AttachmentSupport = (doc.getObject("YZ_Plane"), [""])
sketch12.MapMode = "FlatFace"
sketch12.AttachmentOffset = App.Placement(V(0, 0, 103.07), App.Rotation())
sketch12.addGeometry(Part.LineSegment(V(75, 65, 0), V(-75, 65, 0)), False)
sketch12.addGeometry(Part.LineSegment(V(-75, 65, 0), V(-75, 50, 0)), False)
sketch12.addGeometry(Part.LineSegment(V(-75, 50, 0), V(75, 50, 0)), False)
sketch12.addGeometry(Part.LineSegment(V(75, 50, 0), V(75, 65, 0)), False)
sketch12.addConstraint(Sketcher.Constraint("Coincident", 0, 2, 1, 1))
sketch12.addConstraint(Sketcher.Constraint("Coincident", 1, 2, 2, 1))
sketch12.addConstraint(Sketcher.Constraint("Coincident", 2, 2, 3, 1))
sketch12.addConstraint(Sketcher.Constraint("Coincident", 3, 2, 0, 1))
sketch12.addConstraint(Sketcher.Constraint("Horizontal", 0))
sketch12.addConstraint(Sketcher.Constraint("Vertical", 1))
sketch12.addConstraint(Sketcher.Constraint("Horizontal", 2))
sketch12.addConstraint(Sketcher.Constraint("Vertical", 3))
sketch12.addConstraint(Sketcher.Constraint("DistanceX", 0, 2, 0, 1, 150.0))
sketch12.addConstraint(Sketcher.Constraint("DistanceX", 0, 2, -1, 1, 75.0))
sketch12.addConstraint(Sketcher.Constraint("DistanceY", -1, 1, 1, 2, 50.0))
sketch12.addConstraint(Sketcher.Constraint("DistanceY", 1, 2, 1, 1, 15.470706))
pocket5 = body.newObject("PartDesign::Pocket", "Pocket004")
pocket5.Profile = sketch12
pocket5.Length = 5
pocket5.Midplane = True

# Sketch on YZ plane
sketch13 = body.newObject("Sketcher::SketchObject", "Sketch012")
sketch13.AttachmentSupport = (doc.getObject("YZ_Plane"), [""])
sketch13.MapMode = "FlatFace"
sketch13.AttachmentOffset = App.Placement(V(0, 0, -112.93), App.Rotation())
sketch13.addGeometry(Part.Circle(V(60, 56.4, 0), V(0, 0, 1), 1.5), False)
sketch13.addGeometry(Part.Circle(V(-60, 56.4, 0), V(0, 0, 1), 1.5), False)
sketch13.addConstraint(Sketcher.Constraint("Equal", 0, 1))
sketch13.addConstraint(Sketcher.Constraint("Symmetric", 0, 3, 1, 3, -2))
sketch13.addConstraint(Sketcher.Constraint("Diameter", 0, 3.0))
sketch13.addConstraint(Sketcher.Constraint("DistanceX", -1, 1, 0, 3, 60.0))
sketch13.addConstraint(Sketcher.Constraint("DistanceY", -1, 1, 0, 3, 56.44349))
pocket6 = body.newObject("PartDesign::Pocket", "Pocket005")
pocket6.Profile = sketch13
pocket6.Length = 484
pocket6.Midplane = True

doc.recompute()
